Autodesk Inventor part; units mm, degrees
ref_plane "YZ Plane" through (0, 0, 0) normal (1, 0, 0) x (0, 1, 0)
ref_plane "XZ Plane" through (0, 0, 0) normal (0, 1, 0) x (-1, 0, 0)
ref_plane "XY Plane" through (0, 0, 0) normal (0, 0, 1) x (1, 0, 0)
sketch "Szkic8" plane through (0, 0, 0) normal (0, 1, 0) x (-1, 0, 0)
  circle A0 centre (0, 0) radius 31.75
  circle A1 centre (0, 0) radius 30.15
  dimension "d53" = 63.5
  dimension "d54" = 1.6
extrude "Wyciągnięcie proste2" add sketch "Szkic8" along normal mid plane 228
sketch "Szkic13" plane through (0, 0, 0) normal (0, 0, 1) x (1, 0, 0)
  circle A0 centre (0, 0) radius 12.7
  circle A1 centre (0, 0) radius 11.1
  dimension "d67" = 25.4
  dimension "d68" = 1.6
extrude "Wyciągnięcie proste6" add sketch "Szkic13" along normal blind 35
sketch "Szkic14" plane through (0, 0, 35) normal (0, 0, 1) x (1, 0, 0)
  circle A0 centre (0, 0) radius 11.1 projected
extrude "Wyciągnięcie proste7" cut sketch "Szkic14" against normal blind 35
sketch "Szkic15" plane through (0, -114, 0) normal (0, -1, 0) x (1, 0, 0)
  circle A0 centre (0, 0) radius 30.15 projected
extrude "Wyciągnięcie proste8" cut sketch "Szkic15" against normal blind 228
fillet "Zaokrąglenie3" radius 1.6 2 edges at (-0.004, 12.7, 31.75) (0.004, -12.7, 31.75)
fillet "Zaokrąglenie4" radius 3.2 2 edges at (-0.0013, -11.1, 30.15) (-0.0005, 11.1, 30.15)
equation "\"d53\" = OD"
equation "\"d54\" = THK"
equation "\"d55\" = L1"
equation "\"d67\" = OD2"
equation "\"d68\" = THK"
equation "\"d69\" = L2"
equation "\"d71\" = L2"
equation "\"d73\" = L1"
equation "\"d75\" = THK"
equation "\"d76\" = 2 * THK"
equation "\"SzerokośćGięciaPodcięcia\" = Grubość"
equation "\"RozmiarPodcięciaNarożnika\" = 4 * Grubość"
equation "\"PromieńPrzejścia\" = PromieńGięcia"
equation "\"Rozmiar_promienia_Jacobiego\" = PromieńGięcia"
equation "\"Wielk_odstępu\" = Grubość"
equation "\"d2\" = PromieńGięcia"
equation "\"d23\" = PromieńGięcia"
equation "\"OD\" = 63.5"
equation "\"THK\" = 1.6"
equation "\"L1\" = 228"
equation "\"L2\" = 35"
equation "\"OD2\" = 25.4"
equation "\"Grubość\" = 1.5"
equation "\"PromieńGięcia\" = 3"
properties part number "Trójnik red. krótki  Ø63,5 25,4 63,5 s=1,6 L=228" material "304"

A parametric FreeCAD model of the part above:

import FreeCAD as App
import Part
import Sketcher

V = App.Vector


def edges_at(feature, points):
    """Names of the edges that pass closest to the given points."""
    edges = feature.Shape.Edges
    near = lambda p: min(range(len(edges)), key=lambda i: edges[i].distToShape(Part.Vertex(*p))[0])
    return sorted({f"Edge{near(p) + 1}" for p in points})

doc = App.newDocument("Part")
body = doc.addObject("PartDesign::Body", "Body")

# Sketch on XZ plane
sketch1 = body.newObject("Sketcher::SketchObject", "Sketch")
sketch1.AttachmentSupport = (doc.getObject("XZ_Plane"), [""])
sketch1.MapMode = "FlatFace"
sketch1.addGeometry([
    Part.Circle(V(0, 0, 0), V(0, 0, 1), 32),
    Part.Circle(V(0, 0, 0), V(0, 0, 1), 30),
], False)
sketch1.addConstraint([
    Sketcher.Constraint("Coincident", 0, 3, -1, 1),
    Sketcher.Constraint("Coincident", 1, 3, -1, 1),
    Sketcher.Constraint("Diameter", 0, 63.5),
    Sketcher.Constraint("Diameter", 1, 60.3),
])
pad1 = body.newObject("PartDesign::Pad", "Pad")
pad1.Profile = sketch1
pad1.Length = 228
pad1.Midplane = True

# Sketch on XY plane
sketch2 = body.newObject("Sketcher::SketchObject", "Sketch001")
sketch2.AttachmentSupport = (doc.getObject("XY_Plane"), [""])
sketch2.MapMode = "FlatFace"
sketch2.addGeometry([
    Part.Circle(V(0, 0, 0), V(0, 0, 1), 13),
    Part.Circle(V(0, 0, 0), V(0, 0, 1), 11),
], False)
sketch2.addConstraint([
    Sketcher.Constraint("Coincident", 0, 3, -1, 1),
    Sketcher.Constraint("Coincident", 1, 3, -1, 1),
    Sketcher.Constraint("Diameter", 0, 25.4),
    Sketcher.Constraint("Diameter", 1, 22.2),
])
pad2 = body.newObject("PartDesign::Pad", "Pad001")
pad2.Profile = sketch2
pad2.Length = 35

# Sketch on XY plane
sketch3 = body.newObject("Sketcher::SketchObject", "Sketch002")
sketch3.AttachmentSupport = (doc.getObject("XY_Plane"), [""])
sketch3.MapMode = "FlatFace"
sketch3.AttachmentOffset = App.Placement(V(0, 0, 35), App.Rotation())
sketch3.addGeometry(Part.Circle(V(0, 0, 0), V(0, 0, 1), 11), False)
sketch3.addConstraint([
    Sketcher.Constraint("Coincident", 0, 3, -1, 1),
    Sketcher.Constraint("Diameter", 0, 22.2),
])
pocket1 = body.newObject("PartDesign::Pocket", "Pocket")
pocket1.Profile = sketch3
pocket1.Length = 35

# Sketch on XZ plane
sketch4 = body.newObject("Sketcher::SketchObject", "Sketch003")
sketch4.AttachmentSupport = (doc.getObject("XZ_Plane"), [""])
sketch4.MapMode = "FlatFace"
sketch4.AttachmentOffset = App.Placement(V(0, 0, 114), App.Rotation())
sketch4.addGeometry(Part.Circle(V(0, 0, 0), V(0, 0, 1), 30), False)
sketch4.addConstraint([
    Sketcher.Constraint("Coincident", 0, 3, -1, 1),
    Sketcher.Constraint("Diameter", 0, 60.3),
])
pocket2 = body.newObject("PartDesign::Pocket", "Pocket001")
pocket2.Profile = sketch4
pocket2.Length = 228
doc.recompute()

fillet = body.newObject("PartDesign::Fillet", "Fillet")
fillet.Base = (pocket2, edges_at(pocket2, [(-0.004, 12.7, 31.75), (0.004, -12.7, 31.75)]))
fillet.Radius = 1.6
doc.recompute()

fillet2 = body.newObject("PartDesign::Fillet", "Fillet001")
fillet2.Base = (fillet, edges_at(fillet, [(-0.001, -11.1, 30.15), (-0.001, 11.1, 30.15)]))
fillet2.Radius = 3.2

doc.recompute()
